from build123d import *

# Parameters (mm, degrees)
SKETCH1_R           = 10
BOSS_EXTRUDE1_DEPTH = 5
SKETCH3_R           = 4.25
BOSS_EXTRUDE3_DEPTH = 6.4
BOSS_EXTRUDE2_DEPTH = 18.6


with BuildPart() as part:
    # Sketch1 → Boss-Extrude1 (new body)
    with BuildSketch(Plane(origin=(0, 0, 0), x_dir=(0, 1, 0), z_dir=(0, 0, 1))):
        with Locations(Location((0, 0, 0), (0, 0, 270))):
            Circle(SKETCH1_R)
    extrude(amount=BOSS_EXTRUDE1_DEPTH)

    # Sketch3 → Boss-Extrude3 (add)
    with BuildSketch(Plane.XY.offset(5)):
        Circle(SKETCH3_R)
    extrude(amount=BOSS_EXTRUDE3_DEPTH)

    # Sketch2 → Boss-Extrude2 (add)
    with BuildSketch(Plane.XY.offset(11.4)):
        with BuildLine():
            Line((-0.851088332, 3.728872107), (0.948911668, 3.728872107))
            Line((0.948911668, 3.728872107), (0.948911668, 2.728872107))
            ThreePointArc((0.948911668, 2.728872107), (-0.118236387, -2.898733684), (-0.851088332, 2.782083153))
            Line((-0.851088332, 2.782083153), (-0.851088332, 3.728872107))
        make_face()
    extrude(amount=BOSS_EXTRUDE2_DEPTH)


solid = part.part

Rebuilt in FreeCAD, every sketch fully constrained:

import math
import FreeCAD as App
import Part
import Sketcher
from FreeCAD import Vector

doc = App.newDocument("Part")
params = doc.addObject("Spreadsheet::Sheet", "Params")
for row, (alias, value) in enumerate([
    ("sketch1_diameter", "20 mm"),
    ("pad1_length", "5 mm"),
    ("sketch2_diameter", "8.5 mm"),
    ("pad2_length", "6.4 mm"),
    ("sketch3_radius", "2.9 mm"),
    ("sketch3_height", "1 mm"),
    ("sketch3_width", "1.8 mm"),
    ("pad3_length", "18.6 mm"),
], start=1):
    params.set(f"A{row}", alias)
    params.set(f"B{row}", "=" + value)
    params.setAlias(f"B{row}", alias)

body = doc.addObject("PartDesign::Body", "Body")

# Sketch on XY plane
sketch1 = body.newObject("Sketcher::SketchObject", "Sketch")
sketch1.AttachmentSupport = (doc.getObject("XY_Plane"), [""])
sketch1.MapMode = "FlatFace"
sketch1.addGeometry(Part.Circle(Vector(0, 0, 0), Vector(0, 0, 1), 10), False)
sketch1.addConstraint([
    Sketcher.Constraint("Coincident", 0, 3, -1, 1),
    Sketcher.Constraint("Diameter", 0, 20.0),
])
sketch1.setExpression("Constraints[1]", "Params.sketch1_diameter")
pad1 = body.newObject("PartDesign::Pad", "Pad")
pad1.Profile = sketch1
pad1.setExpression("Length", "Params.pad1_length")

# Sketch on XY plane
sketch2 = body.newObject("Sketcher::SketchObject", "Sketch001")
sketch2.AttachmentSupport = (doc.getObject("XY_Plane"), [""])
sketch2.MapMode = "FlatFace"
sketch2.AttachmentOffset = App.Placement(Vector(0, 0, 5), App.Rotation())
sketch2.addGeometry(Part.Circle(Vector(0, 0, 0), Vector(0, 0, 1), 4.2), False)
sketch2.addConstraint([
    Sketcher.Constraint("Coincident", 0, 3, -1, 1),
    Sketcher.Constraint("Diameter", 0, 8.5),
])
sketch2.setExpression("Constraints[1]", "Params.sketch2_diameter")
pad2 = body.newObject("PartDesign::Pad", "Pad001")
pad2.Profile = sketch2
pad2.setExpression("Length", "Params.pad2_length")

# Sketch on XY plane
sketch3 = body.newObject("Sketcher::SketchObject", "Sketch002")
sketch3.AttachmentSupport = (doc.getObject("XY_Plane"), [""])
sketch3.MapMode = "FlatFace"
sketch3.AttachmentOffset = App.Placement(Vector(0, 0, 11.4), App.Rotation())
sketch3.addGeometry([
    Part.LineSegment(Vector(0.9, 3.7, 0), Vector(-0.9, 3.7, 0)),
    Part.LineSegment(Vector(-0.9, 3.7, 0), Vector(-0.9, 2.8, 0)),
    Part.ArcOfCircle(Part.Circle(Vector(0, 0, 0), Vector(0, 0, 1), 2.9), math.radians(106), math.radians(430)),
    Part.LineSegment(Vector(0.9, 2.7, 0), Vector(0.9, 3.7, 0)),
], False)
sketch3.addConstraint([
    Sketcher.Constraint("Coincident", 0, 2, 1, 1),
    Sketcher.Constraint("Coincident", 1, 2, 2, 1),
    Sketcher.Constraint("Coincident", 2, 2, 3, 1),
    Sketcher.Constraint("Coincident", 3, 2, 0, 1),
    Sketcher.Constraint("Horizontal", 0),
    Sketcher.Constraint("Vertical", 1),
    Sketcher.Constraint("Vertical", 3),
    Sketcher.Constraint("PointOnObject", 2, 3, -1),
    Sketcher.Constraint("Radius", 2, 2.9),
    Sketcher.Constraint("DistanceY", 3, 1, 3, 2, 1.0),
    Sketcher.Constraint("DistanceX", 0, 2, 0, 1, 1.8),
    Sketcher.Constraint("DistanceY", 1, 2, 1, 1, 0.946789),
    Sketcher.Constraint("DistanceX", 0, 2, -1, 1, 0.851088),
])
sketch3.setExpression("Constraints[8]", "Params.sketch3_radius")
sketch3.setExpression("Constraints[9]", "Params.sketch3_height")
sketch3.setExpression("Constraints[10]", "Params.sketch3_width")
pad3 = body.newObject("PartDesign::Pad", "Pad002")
pad3.Profile = sketch3
pad3.setExpression("Length", "Params.pad3_length")

doc.recompute()
